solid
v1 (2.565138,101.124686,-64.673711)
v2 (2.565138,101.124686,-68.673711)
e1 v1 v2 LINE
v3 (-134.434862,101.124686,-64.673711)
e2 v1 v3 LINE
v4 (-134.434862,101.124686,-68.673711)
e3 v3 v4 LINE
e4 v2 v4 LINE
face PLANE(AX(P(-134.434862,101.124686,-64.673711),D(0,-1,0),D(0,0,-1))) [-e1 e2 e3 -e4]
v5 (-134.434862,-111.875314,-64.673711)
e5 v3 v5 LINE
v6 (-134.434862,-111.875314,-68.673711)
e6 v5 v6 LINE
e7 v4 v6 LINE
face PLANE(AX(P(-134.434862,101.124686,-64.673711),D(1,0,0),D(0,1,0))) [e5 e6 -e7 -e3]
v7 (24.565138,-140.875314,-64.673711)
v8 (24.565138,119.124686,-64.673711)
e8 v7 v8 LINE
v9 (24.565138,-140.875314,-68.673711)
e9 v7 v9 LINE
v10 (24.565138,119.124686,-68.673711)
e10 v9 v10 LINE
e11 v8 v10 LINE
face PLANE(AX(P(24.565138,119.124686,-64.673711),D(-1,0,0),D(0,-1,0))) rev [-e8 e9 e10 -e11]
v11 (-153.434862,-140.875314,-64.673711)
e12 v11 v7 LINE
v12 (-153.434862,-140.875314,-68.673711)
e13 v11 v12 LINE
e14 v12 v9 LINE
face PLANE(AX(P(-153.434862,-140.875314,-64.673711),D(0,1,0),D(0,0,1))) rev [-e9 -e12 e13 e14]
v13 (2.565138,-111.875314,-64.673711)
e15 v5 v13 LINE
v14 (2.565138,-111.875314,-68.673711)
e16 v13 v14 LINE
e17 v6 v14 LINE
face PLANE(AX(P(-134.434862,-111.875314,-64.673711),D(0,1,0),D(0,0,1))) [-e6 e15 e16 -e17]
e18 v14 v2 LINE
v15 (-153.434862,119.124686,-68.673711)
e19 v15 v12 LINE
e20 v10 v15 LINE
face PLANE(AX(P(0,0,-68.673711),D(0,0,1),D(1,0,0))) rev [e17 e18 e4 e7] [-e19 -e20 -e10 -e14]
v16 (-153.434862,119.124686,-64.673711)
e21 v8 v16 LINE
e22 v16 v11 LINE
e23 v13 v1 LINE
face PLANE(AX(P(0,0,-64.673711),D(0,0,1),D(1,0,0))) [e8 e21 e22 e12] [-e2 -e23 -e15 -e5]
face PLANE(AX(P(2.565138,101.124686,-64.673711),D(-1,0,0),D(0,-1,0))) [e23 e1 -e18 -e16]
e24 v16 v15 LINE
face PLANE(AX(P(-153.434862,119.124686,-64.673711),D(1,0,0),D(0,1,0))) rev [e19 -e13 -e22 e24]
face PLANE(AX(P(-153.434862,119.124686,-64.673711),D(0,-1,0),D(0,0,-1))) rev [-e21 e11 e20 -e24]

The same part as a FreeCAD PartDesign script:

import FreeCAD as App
import Part
import Sketcher
from FreeCAD import Vector
Q = App.Units.Quantity

doc = App.newDocument("Part")
body = doc.addObject("PartDesign::Body", "Body")

sketch1 = doc.addObject("Sketcher::SketchObject", "Sketch")
body.addObject(sketch1)
sketch1.AttachmentSupport = (doc.XY_Plane, [""])
sketch1.MapMode = "FlatFace"
sketch1.AttachmentOffset = App.Placement(Vector(0, 0, -68.673711), App.Rotation())
sketch1.addGeometry(Part.LineSegment(Vector(-153, 119, 0), Vector(-153, -141, 0)), False)
sketch1.addGeometry(Part.LineSegment(Vector(-153, -141, 0), Vector(25, -141, 0)), False)
sketch1.addGeometry(Part.LineSegment(Vector(25, -141, 0), Vector(25, 119, 0)), False)
sketch1.addGeometry(Part.LineSegment(Vector(25, 119, 0), Vector(-153, 119, 0)), False)
sketch1.addGeometry(Part.LineSegment(Vector(3, -112, 0), Vector(-134, -112, 0)), False)
sketch1.addGeometry(Part.LineSegment(Vector(-134, -112, 0), Vector(-134, 101, 0)), False)
sketch1.addGeometry(Part.LineSegment(Vector(-134, 101, 0), Vector(3, 101, 0)), False)
sketch1.addGeometry(Part.LineSegment(Vector(3, 101, 0), Vector(3, -112, 0)), False)
sketch1.addConstraint(Sketcher.Constraint("Coincident", 0, 2, 1, 1))
sketch1.addConstraint(Sketcher.Constraint("Coincident", 1, 2, 2, 1))
sketch1.addConstraint(Sketcher.Constraint("Coincident", 2, 2, 3, 1))
sketch1.addConstraint(Sketcher.Constraint("Coincident", 3, 2, 0, 1))
sketch1.addConstraint(Sketcher.Constraint("Coincident", 4, 2, 5, 1))
sketch1.addConstraint(Sketcher.Constraint("Coincident", 5, 2, 6, 1))
sketch1.addConstraint(Sketcher.Constraint("Coincident", 6, 2, 7, 1))
sketch1.addConstraint(Sketcher.Constraint("Coincident", 7, 2, 4, 1))
sketch1.addConstraint(Sketcher.Constraint("Vertical", 0))
sketch1.addConstraint(Sketcher.Constraint("Horizontal", 1))
sketch1.addConstraint(Sketcher.Constraint("Vertical", 2))
sketch1.addConstraint(Sketcher.Constraint("Horizontal", 3))
sketch1.addConstraint(Sketcher.Constraint("Horizontal", 4))
sketch1.addConstraint(Sketcher.Constraint("Vertical", 5))
sketch1.addConstraint(Sketcher.Constraint("Horizontal", 6))
sketch1.addConstraint(Sketcher.Constraint("Vertical", 7))
sketch1.addConstraint(Sketcher.Constraint("DistanceX", 1, 1, 1, 2, Q("178 mm")))
sketch1.addConstraint(Sketcher.Constraint("DistanceX", 4, 2, 4, 1, Q("137 mm")))
sketch1.addConstraint(Sketcher.Constraint("DistanceY", 0, 2, 0, 1, Q("260 mm")))
sketch1.addConstraint(Sketcher.Constraint("DistanceY", 5, 1, 5, 2, Q("213 mm")))
sketch1.addConstraint(Sketcher.Constraint("DistanceX", 0, 2, 4, 2, Q("19 mm")))
sketch1.addConstraint(Sketcher.Constraint("DistanceY", 0, 2, 4, 2, Q("29 mm")))
sketch1.addConstraint(Sketcher.Constraint("DistanceX", 0, 2, -1, 1, Q("153.434862 mm")))
sketch1.addConstraint(Sketcher.Constraint("DistanceY", 0, 2, -1, 1, Q("140.875314 mm")))
pad1 = doc.addObject("PartDesign::Pad", "Pad")
body.addObject(pad1)
pad1.Profile = sketch1
pad1.Length = 4

doc.recompute()
